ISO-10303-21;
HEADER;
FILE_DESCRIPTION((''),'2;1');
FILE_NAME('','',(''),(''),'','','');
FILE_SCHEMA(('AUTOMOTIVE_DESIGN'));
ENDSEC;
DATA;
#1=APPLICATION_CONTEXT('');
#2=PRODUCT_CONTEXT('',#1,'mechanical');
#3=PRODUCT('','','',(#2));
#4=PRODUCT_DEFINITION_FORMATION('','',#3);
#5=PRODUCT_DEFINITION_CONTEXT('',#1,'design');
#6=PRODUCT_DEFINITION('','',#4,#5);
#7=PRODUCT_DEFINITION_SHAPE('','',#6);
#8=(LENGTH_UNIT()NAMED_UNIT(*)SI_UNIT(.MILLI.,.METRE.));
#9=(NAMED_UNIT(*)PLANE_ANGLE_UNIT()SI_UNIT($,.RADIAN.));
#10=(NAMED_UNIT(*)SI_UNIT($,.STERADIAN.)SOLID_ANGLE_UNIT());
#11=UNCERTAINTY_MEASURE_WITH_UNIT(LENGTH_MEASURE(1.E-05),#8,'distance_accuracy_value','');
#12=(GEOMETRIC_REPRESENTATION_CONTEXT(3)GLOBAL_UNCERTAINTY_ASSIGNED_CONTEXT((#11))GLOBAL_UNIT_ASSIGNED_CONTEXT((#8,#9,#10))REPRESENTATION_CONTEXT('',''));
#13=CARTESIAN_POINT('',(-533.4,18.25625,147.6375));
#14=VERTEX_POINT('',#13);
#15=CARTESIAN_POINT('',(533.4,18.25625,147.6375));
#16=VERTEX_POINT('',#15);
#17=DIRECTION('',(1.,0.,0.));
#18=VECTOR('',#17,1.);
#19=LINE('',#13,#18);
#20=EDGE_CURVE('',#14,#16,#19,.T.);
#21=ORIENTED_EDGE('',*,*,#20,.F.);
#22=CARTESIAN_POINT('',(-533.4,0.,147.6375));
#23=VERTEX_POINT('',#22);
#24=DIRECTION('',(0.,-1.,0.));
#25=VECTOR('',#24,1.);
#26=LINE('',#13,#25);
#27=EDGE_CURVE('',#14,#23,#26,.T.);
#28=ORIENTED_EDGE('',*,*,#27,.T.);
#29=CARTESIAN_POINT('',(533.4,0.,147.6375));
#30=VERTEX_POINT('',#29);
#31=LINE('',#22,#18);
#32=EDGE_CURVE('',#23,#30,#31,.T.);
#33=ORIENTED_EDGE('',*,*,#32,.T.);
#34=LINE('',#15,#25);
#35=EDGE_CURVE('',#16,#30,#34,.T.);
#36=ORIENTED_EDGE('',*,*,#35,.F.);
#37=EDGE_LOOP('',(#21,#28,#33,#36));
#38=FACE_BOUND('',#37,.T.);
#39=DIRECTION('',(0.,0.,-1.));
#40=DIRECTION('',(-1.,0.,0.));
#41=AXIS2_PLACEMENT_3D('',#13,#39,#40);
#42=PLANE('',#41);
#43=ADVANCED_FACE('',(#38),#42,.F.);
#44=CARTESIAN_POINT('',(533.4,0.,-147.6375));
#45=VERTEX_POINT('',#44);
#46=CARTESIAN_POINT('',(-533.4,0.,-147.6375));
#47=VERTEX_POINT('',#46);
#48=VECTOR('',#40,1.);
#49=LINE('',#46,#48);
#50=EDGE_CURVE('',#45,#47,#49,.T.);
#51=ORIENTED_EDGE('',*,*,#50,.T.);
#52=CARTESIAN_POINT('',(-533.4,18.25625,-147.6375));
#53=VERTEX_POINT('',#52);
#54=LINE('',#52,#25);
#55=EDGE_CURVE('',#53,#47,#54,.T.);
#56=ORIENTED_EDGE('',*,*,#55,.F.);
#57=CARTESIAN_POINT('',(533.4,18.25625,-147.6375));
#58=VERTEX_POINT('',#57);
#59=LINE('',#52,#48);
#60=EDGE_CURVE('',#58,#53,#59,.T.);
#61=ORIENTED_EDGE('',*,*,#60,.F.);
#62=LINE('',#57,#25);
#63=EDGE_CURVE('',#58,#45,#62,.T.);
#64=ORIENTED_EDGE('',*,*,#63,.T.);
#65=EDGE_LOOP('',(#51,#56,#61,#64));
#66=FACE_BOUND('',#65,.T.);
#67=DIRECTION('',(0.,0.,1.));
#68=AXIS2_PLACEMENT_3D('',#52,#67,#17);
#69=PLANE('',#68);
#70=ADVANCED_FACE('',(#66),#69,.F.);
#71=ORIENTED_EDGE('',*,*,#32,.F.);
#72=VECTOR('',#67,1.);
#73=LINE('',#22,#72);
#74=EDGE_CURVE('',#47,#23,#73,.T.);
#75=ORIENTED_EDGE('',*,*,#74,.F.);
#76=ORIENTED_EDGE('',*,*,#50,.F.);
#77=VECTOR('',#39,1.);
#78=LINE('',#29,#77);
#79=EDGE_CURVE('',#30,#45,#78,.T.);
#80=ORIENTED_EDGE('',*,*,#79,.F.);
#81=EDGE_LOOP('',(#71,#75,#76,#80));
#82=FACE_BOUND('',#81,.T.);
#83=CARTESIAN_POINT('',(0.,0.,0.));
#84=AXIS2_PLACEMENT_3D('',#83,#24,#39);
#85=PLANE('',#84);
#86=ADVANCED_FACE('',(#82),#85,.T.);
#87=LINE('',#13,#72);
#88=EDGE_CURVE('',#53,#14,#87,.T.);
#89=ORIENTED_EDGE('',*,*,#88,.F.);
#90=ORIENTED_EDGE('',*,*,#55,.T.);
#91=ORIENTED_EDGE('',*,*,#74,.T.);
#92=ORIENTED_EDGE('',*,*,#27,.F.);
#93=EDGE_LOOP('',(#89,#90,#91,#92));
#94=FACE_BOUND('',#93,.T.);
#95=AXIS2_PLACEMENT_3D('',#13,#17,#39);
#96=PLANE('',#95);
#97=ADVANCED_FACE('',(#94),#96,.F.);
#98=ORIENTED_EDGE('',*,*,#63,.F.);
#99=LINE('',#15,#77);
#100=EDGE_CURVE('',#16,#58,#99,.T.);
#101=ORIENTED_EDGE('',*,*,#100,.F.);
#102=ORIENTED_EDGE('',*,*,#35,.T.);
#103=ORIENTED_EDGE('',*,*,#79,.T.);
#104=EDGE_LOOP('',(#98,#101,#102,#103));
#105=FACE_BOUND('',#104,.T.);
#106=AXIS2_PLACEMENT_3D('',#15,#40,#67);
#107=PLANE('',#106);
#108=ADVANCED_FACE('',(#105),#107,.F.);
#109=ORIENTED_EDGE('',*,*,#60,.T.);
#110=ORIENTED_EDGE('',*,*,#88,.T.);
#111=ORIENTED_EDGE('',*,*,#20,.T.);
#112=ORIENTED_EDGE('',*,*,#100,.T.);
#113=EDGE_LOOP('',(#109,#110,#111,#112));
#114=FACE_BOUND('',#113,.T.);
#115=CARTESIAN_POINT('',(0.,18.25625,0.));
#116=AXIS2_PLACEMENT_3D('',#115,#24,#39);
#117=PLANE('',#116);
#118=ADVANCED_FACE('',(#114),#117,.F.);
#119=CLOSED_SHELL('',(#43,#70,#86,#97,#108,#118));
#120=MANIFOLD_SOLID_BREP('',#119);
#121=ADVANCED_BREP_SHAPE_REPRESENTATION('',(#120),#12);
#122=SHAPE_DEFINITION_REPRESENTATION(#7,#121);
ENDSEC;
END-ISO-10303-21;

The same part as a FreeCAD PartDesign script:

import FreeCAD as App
import Part
import Sketcher
from FreeCAD import Vector
Q = App.Units.Quantity


def add_polygon(sketch, points):
    """Adds a closed chain of lines whose ends are joined by coincident constraints."""
    first, n = sketch.GeometryCount, len(points)
    for a, b in zip(points, points[1:] + points[:1]):
        sketch.addGeometry(Part.LineSegment(App.Vector(*a, 0), App.Vector(*b, 0)), False)
    for i in range(n):
        sketch.addConstraint(Sketcher.Constraint("Coincident", first + i, 2, first + (i + 1) % n, 1))

doc = App.newDocument("Part")
params = doc.addObject("Spreadsheet::Sheet", "Params")
for row, (alias, value) in enumerate([
    ("sketch1_width", "42 in"),
    ("sketch1_height", "11.625 in"),
    ("pad1_length", "0.71875 in"),
], start=1):
    params.set(f"A{row}", alias)
    params.set(f"B{row}", "=" + value)
    params.setAlias(f"B{row}", alias)

body = doc.addObject("PartDesign::Body", "Body")

sketch1 = body.newObject("Sketcher::SketchObject", "Sketch")
sketch1.AttachmentSupport = (doc.getObject("XZ_Plane"), [""])
sketch1.MapMode = "FlatFace"
add_polygon(sketch1, [(-533, -148), (-533, 148), (533, 148), (533, -148)])
sketch1.addConstraint([
    Sketcher.Constraint("Vertical", 0),
    Sketcher.Constraint("Horizontal", 1),
    Sketcher.Constraint("Vertical", 2),
    Sketcher.Constraint("Horizontal", 3),
    Sketcher.Constraint("Symmetric", 0, 2, 2, 2, -1, 1),
    Sketcher.Constraint("DistanceX", 1, 1, 1, 2, Q("42 in")),
    Sketcher.Constraint("DistanceY", 0, 1, 0, 2, Q("11.625 in")),
])
sketch1.setExpression("Constraints[9]", "Params.sketch1_width")
sketch1.setExpression("Constraints[10]", "Params.sketch1_height")
pad1 = body.newObject("PartDesign::Pad", "Pad")
pad1.Profile = sketch1
pad1.setExpression("Length", "Params.pad1_length")
pad1.Reversed = True

doc.recompute()
